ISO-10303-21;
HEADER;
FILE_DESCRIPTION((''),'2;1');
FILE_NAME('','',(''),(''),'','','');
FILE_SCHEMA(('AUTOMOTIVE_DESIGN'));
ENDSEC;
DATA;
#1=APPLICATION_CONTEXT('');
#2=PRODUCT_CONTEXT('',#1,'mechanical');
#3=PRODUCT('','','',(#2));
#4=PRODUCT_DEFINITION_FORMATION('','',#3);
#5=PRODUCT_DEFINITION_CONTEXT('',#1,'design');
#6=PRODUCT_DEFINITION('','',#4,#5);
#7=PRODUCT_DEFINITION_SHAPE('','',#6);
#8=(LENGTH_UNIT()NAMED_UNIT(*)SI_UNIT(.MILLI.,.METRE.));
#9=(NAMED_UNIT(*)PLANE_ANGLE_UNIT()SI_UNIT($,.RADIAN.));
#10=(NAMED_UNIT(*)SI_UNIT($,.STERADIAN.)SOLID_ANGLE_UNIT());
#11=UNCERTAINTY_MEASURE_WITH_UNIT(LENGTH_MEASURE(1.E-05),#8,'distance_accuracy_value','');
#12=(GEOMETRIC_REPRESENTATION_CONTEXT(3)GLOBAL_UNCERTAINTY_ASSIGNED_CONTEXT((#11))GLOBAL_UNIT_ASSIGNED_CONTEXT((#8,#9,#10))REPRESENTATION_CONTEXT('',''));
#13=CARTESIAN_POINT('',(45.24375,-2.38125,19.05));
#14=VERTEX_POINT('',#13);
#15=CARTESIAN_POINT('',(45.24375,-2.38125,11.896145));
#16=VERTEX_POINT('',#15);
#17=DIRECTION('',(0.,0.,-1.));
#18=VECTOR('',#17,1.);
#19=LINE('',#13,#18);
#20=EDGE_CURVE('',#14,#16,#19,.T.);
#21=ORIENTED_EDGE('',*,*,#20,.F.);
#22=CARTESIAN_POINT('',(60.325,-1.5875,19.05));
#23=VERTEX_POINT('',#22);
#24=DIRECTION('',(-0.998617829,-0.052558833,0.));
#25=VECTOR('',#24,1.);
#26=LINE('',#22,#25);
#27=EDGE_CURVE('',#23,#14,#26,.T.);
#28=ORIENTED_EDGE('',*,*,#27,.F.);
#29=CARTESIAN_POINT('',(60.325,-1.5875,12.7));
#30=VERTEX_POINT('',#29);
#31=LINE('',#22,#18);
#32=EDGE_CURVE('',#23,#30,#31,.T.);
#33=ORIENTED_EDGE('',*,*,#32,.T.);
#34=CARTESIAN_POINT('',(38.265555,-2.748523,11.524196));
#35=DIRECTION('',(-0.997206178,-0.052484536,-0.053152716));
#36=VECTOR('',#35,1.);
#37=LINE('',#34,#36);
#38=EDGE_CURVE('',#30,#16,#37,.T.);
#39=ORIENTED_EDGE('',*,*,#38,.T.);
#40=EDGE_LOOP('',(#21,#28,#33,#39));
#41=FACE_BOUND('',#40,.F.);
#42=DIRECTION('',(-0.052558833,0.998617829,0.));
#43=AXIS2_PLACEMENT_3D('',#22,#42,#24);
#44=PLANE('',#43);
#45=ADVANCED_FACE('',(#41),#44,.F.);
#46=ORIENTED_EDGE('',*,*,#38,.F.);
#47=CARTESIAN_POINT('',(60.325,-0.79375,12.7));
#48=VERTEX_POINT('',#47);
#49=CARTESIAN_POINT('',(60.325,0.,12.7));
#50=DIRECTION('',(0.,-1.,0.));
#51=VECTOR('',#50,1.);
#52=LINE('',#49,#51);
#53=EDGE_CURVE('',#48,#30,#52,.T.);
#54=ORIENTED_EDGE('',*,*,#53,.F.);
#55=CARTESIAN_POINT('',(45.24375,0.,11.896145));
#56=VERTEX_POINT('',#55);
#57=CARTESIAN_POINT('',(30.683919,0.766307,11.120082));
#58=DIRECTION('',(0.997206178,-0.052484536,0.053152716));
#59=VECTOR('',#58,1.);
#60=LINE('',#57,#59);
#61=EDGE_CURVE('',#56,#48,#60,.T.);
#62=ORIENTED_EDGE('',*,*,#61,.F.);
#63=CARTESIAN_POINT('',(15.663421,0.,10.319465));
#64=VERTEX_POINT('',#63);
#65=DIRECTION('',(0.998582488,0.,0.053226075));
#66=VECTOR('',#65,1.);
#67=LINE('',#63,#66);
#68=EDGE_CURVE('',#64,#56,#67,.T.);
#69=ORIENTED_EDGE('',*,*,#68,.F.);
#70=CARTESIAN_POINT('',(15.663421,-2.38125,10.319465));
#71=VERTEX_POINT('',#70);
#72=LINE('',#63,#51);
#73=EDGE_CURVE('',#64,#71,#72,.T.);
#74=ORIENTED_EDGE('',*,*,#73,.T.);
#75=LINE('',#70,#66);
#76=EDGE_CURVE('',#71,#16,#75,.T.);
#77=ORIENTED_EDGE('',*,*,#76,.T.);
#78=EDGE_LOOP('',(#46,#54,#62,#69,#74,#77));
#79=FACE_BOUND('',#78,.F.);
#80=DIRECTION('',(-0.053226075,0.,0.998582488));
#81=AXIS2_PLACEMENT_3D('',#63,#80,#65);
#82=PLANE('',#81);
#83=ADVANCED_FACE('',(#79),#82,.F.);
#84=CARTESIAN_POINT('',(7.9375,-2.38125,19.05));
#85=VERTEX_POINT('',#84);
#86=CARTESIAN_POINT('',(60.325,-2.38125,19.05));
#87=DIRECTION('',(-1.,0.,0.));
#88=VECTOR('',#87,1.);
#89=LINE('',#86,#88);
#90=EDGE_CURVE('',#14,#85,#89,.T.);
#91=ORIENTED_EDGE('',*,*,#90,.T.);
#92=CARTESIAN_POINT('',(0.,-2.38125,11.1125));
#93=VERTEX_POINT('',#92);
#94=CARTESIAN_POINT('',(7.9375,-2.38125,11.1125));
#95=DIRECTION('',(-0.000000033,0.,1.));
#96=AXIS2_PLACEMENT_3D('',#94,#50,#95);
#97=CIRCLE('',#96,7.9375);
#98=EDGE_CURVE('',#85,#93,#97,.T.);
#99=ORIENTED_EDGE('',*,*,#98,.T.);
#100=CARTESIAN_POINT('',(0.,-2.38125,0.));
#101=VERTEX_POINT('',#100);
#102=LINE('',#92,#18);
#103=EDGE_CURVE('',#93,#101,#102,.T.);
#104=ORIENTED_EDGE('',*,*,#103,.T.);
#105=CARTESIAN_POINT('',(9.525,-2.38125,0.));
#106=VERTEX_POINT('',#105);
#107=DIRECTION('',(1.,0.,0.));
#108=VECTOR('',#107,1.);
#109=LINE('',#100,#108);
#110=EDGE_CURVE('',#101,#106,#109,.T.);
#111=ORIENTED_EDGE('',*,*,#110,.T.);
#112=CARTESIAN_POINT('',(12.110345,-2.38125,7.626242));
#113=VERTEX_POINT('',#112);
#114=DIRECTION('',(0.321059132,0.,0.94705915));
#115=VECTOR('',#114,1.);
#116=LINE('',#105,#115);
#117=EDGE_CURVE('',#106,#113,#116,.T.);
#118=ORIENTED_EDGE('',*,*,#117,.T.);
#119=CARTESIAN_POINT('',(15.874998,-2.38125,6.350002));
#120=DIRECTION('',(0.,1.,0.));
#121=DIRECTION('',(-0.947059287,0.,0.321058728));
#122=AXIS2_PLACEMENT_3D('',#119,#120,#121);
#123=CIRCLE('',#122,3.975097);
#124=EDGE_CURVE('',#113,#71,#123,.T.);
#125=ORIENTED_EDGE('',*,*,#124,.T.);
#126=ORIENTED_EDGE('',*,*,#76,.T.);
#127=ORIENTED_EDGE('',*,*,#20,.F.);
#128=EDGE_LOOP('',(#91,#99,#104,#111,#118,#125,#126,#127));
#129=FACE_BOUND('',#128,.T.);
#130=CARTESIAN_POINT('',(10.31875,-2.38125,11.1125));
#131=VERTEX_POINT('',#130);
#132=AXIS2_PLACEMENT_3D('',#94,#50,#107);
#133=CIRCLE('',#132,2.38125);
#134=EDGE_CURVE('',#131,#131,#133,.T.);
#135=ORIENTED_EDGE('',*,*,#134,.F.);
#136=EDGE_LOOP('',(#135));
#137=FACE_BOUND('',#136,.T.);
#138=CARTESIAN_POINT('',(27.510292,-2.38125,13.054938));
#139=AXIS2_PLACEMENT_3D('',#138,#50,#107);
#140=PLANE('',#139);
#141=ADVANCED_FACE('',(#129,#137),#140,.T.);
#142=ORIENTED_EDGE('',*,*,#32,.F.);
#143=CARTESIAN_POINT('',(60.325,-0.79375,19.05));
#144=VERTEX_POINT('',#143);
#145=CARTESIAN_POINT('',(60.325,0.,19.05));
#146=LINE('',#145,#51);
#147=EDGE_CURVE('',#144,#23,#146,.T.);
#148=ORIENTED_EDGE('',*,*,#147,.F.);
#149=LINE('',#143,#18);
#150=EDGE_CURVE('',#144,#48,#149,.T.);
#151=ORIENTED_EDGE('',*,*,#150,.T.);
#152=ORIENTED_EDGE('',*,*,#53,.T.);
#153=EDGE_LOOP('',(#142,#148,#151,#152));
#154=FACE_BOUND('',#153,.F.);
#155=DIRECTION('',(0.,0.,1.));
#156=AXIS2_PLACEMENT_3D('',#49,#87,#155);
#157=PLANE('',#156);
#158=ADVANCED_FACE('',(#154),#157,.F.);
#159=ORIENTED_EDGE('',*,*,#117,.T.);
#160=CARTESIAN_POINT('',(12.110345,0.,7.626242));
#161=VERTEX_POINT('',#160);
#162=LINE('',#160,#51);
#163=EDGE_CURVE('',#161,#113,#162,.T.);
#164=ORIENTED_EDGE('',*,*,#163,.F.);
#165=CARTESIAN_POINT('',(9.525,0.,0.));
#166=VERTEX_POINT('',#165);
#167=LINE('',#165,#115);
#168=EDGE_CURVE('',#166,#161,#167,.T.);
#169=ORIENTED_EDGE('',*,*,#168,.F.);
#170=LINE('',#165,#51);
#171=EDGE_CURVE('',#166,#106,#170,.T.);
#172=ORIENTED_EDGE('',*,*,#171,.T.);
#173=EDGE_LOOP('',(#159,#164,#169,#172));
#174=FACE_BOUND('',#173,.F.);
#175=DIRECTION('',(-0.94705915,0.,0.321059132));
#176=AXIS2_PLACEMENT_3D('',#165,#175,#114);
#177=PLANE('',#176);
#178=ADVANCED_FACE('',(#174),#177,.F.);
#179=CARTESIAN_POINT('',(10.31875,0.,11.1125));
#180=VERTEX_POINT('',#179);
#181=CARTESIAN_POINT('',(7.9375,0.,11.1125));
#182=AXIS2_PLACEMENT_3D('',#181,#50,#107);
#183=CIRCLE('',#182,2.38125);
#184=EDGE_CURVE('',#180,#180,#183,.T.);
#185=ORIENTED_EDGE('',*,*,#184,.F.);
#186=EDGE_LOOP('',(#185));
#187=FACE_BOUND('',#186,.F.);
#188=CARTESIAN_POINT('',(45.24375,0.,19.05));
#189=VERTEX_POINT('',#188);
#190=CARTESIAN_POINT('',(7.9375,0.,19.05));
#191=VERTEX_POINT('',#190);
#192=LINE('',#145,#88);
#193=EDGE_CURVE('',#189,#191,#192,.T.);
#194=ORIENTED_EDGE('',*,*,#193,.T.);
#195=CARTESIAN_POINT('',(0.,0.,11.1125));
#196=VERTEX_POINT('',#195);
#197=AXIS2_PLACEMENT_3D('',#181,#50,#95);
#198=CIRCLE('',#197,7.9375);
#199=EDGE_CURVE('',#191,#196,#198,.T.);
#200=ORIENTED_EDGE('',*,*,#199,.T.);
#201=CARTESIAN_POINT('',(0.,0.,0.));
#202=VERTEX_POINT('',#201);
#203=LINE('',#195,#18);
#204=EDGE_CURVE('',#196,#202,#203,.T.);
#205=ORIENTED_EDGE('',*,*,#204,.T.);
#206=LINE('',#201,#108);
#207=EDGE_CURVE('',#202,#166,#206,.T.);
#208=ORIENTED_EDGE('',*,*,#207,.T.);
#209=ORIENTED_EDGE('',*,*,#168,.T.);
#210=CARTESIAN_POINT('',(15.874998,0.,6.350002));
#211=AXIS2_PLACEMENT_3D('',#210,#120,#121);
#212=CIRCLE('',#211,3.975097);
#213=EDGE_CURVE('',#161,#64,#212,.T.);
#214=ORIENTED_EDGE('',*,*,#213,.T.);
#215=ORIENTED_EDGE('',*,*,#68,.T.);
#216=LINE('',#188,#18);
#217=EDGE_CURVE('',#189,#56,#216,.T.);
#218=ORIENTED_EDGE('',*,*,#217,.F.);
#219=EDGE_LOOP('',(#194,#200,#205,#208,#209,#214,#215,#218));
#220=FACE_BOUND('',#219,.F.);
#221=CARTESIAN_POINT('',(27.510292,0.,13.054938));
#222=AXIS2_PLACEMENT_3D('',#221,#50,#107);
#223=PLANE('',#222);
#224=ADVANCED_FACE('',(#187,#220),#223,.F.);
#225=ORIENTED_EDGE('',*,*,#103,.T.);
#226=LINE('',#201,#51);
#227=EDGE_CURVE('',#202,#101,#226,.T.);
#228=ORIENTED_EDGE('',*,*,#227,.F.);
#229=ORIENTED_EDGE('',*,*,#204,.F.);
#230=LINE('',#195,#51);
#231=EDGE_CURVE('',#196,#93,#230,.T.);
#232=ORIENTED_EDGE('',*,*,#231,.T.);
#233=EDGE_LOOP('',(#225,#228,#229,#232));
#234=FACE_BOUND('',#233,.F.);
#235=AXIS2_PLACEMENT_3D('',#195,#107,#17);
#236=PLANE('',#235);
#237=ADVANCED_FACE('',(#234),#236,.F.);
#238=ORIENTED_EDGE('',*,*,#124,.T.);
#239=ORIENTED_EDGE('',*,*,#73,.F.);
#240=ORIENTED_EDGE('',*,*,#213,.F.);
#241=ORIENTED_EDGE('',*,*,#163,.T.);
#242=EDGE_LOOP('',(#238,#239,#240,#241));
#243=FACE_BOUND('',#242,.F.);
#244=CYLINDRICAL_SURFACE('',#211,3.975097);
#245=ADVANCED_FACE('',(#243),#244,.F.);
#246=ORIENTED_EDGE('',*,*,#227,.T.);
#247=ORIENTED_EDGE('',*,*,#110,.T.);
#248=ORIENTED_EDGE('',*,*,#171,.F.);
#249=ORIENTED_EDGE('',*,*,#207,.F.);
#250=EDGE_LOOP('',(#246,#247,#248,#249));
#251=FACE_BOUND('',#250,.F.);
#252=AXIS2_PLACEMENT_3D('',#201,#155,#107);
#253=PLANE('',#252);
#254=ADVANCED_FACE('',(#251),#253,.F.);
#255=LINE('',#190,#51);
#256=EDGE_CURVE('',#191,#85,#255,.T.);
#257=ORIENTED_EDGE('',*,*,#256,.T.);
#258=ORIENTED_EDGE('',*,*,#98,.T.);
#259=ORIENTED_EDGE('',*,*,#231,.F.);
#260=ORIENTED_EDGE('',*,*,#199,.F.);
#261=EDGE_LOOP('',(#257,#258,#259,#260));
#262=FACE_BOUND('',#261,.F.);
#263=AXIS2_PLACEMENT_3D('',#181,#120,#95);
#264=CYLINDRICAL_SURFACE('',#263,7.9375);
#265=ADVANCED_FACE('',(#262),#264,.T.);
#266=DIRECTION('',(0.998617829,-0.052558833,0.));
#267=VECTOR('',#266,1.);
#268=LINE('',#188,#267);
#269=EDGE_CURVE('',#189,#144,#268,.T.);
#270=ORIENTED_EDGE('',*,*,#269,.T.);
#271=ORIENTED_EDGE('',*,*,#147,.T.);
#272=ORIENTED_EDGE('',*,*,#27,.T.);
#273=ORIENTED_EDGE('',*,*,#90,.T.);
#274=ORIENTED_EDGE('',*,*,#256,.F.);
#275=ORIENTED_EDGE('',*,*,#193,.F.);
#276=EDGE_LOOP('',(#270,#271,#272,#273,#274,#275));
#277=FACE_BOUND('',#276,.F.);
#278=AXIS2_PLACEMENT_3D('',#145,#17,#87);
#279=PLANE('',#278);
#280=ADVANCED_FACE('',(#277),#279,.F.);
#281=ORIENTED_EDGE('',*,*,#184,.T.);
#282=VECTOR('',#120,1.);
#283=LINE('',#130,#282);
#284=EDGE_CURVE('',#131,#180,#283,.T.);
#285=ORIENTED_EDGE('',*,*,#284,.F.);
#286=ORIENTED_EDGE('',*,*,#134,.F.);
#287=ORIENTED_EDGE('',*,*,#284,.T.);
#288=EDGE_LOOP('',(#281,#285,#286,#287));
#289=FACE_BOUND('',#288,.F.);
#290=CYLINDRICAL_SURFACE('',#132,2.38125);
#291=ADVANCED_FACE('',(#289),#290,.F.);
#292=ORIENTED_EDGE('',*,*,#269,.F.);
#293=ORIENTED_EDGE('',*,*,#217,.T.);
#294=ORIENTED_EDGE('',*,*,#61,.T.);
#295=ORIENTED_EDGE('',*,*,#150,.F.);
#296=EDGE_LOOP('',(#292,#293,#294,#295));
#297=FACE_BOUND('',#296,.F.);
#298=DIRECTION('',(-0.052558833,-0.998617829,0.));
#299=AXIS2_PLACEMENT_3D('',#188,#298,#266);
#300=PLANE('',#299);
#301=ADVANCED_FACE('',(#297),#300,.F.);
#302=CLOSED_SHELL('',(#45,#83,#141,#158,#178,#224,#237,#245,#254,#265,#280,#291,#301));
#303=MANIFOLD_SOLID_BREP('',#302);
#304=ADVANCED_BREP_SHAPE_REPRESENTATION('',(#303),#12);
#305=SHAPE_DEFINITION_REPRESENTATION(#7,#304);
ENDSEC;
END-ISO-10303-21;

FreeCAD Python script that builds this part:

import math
import FreeCAD as App
import Part
import Sketcher

V = App.Vector
Q = App.Units.Quantity

doc = App.newDocument("Part")
body = doc.addObject("PartDesign::Body", "Body")

sketch1 = doc.addObject("Sketcher::SketchObject", "Sketch")
body.addObject(sketch1)
sketch1.AttachmentSupport = (doc.XZ_Plane, [""])
sketch1.MapMode = "FlatFace"
sketch1.addGeometry(Part.LineSegment(V(60.3, 19.1, 0), V(7.9, 19.1, 0)), False)
sketch1.addGeometry(Part.ArcOfCircle(Part.Circle(V(7.9, 11.1, 0), V(0, 0, 1), 7.9), math.radians(90), math.radians(180)), False)
sketch1.addGeometry(Part.LineSegment(V(0, 11.1, 0), V(0, 0, 0)), False)
sketch1.addGeometry(Part.LineSegment(V(0, 0, 0), V(9.5, 0, 0)), False)
sketch1.addGeometry(Part.LineSegment(V(9.5, 0, 0), V(12.1, 7.6, 0)), False)
sketch1.addGeometry(Part.ArcOfCircle(Part.Circle(V(15.9, 6.4, 0), V(0, 0, 1), 4), math.radians(93), math.radians(161)), False)
sketch1.addGeometry(Part.LineSegment(V(15.7, 10.3, 0), V(60.3, 12.7, 0)), False)
sketch1.addGeometry(Part.LineSegment(V(60.3, 12.7, 0), V(60.3, 19.1, 0)), False)
sketch1.addConstraint(Sketcher.Constraint("Tangent", 0, 2, 1, 1))
sketch1.addConstraint(Sketcher.Constraint("Tangent", 1, 2, 2, 1))
sketch1.addConstraint(Sketcher.Constraint("Coincident", 2, 2, 3, 1))
sketch1.addConstraint(Sketcher.Constraint("Coincident", 3, 2, 4, 1))
sketch1.addConstraint(Sketcher.Constraint("Tangent", 4, 2, 5, 2))
sketch1.addConstraint(Sketcher.Constraint("Tangent", 5, 1, 6, 1))
sketch1.addConstraint(Sketcher.Constraint("Coincident", 6, 2, 7, 1))
sketch1.addConstraint(Sketcher.Constraint("Coincident", 7, 2, 0, 1))
sketch1.addConstraint(Sketcher.Constraint("Horizontal", 0))
sketch1.addConstraint(Sketcher.Constraint("Vertical", 2))
sketch1.addConstraint(Sketcher.Constraint("Horizontal", 3))
sketch1.addConstraint(Sketcher.Constraint("Vertical", 7))
sketch1.addConstraint(Sketcher.Constraint("Coincident", 2, 2, -1, 1))
sketch1.addConstraint(Sketcher.Constraint("Radius", 1, Q("0.3125 in")))
sketch1.addConstraint(Sketcher.Constraint("DistanceX", 3, 2, 6, 2, Q("2 in")))
sketch1.addConstraint(Sketcher.Constraint("DistanceY", 7, 1, 7, 2, Q("0.25 in")))
sketch1.addConstraint(Sketcher.Constraint("DistanceY", -1, 1, 6, 2, Q("0.5 in")))
sketch1.addConstraint(Sketcher.Constraint("Radius", 5, Q("0.1564999 in")))
sketch1.addConstraint(Sketcher.Constraint("DistanceY", 5, 3, 0, 2, Q("0.4999999 in")))
sketch1.addConstraint(Sketcher.Constraint("DistanceX", 0, 2, 0, 1, Q("2.0625 in")))
sketch1.addConstraint(Sketcher.Constraint("DistanceX", 3, 2, 5, 3, Q("0.2499999 in")))
pad1 = doc.addObject("PartDesign::Pad", "Pad")
body.addObject(pad1)
pad1.Profile = sketch1
pad1.Length = Q("0.09375 in")

sketch2 = doc.addObject("Sketcher::SketchObject", "Sketch001")
body.addObject(sketch2)
sketch2.AttachmentSupport = (doc.XZ_Plane, [""])
sketch2.MapMode = "FlatFace"
sketch2.AttachmentOffset = App.Placement(V(0, 0, 0.09375 * 25.4), App.Rotation())
sketch2.addGeometry(Part.Circle(V(7.9, 11.1, 0), V(0, 0, 1), 2.4), False)
sketch2.addConstraint(Sketcher.Constraint("Diameter", 0, Q("0.1875 in")))
sketch2.addConstraint(Sketcher.Constraint("DistanceX", -1, 1, 0, 3, Q("0.3125 in")))
sketch2.addConstraint(Sketcher.Constraint("DistanceY", -1, 1, 0, 3, Q("0.4375 in")))
pocket1 = doc.addObject("PartDesign::Pocket", "Pocket")
body.addObject(pocket1)
pocket1.Profile = sketch2
pocket1.Type = "ThroughAll"

sketch3 = doc.addObject("Sketcher::SketchObject", "Sketch002")
body.addObject(sketch3)
sketch3.AttachmentSupport = (doc.XY_Plane, [""])
sketch3.MapMode = "FlatFace"
sketch3.AttachmentOffset = App.Placement(V(0, 0, 0.75 * 25.4), App.Rotation())
sketch3.addGeometry(Part.LineSegment(V(60.3, 0, 0), V(45.2, 0, 0)), False)
sketch3.addGeometry(Part.LineSegment(V(45.2, 0, 0), V(60.3, -0.8, 0)), False)
sketch3.addGeometry(Part.LineSegment(V(60.3, -0.8, 0), V(60.3, 0, 0)), False)
sketch3.addGeometry(Part.LineSegment(V(60.3, -2.4, 0), V(60.3, -1.6, 0)), False)
sketch3.addGeometry(Part.LineSegment(V(60.3, -1.6, 0), V(45.2, -2.4, 0)), False)
sketch3.addGeometry(Part.LineSegment(V(45.2, -2.4, 0), V(60.3, -2.4, 0)), False)
sketch3.addConstraint(Sketcher.Constraint("Coincident", 0, 2, 1, 1))
sketch3.addConstraint(Sketcher.Constraint("Coincident", 1, 2, 2, 1))
sketch3.addConstraint(Sketcher.Constraint("Coincident", 2, 2, 0, 1))
sketch3.addConstraint(Sketcher.Constraint("Coincident", 3, 2, 4, 1))
sketch3.addConstraint(Sketcher.Constraint("Coincident", 4, 2, 5, 1))
sketch3.addConstraint(Sketcher.Constraint("Coincident", 5, 2, 3, 1))
sketch3.addConstraint(Sketcher.Constraint("Horizontal", 0))
sketch3.addConstraint(Sketcher.Constraint("Vertical", 2))
sketch3.addConstraint(Sketcher.Constraint("Vertical", 3))
sketch3.addConstraint(Sketcher.Constraint("Horizontal", 5))
sketch3.addConstraint(Sketcher.Constraint("PointOnObject", 0, 2, -1))
sketch3.addConstraint(Sketcher.Constraint("Vertical", 2, 2, 3, 2))
sketch3.addConstraint(Sketcher.Constraint("Vertical", 0, 2, 4, 2))
sketch3.addConstraint(Sketcher.Constraint("Equal", 2, 3))
sketch3.addConstraint(Sketcher.Constraint("DistanceX", 0, 2, 0, 1, Q("0.59375 in")))
sketch3.addConstraint(Sketcher.Constraint("DistanceY", 2, 1, 2, 2, Q("0.03125 in")))
sketch3.addConstraint(Sketcher.Constraint("DistanceX", -1, 1, 0, 2, Q("1.78125 in")))
sketch3.addConstraint(Sketcher.Constraint("DistanceY", 3, 2, -1, 1, Q("0.0625 in")))
pocket2 = doc.addObject("PartDesign::Pocket", "Pocket001")
body.addObject(pocket2)
pocket2.Profile = sketch3
pocket2.Length = Q("1 in")

doc.recompute()
